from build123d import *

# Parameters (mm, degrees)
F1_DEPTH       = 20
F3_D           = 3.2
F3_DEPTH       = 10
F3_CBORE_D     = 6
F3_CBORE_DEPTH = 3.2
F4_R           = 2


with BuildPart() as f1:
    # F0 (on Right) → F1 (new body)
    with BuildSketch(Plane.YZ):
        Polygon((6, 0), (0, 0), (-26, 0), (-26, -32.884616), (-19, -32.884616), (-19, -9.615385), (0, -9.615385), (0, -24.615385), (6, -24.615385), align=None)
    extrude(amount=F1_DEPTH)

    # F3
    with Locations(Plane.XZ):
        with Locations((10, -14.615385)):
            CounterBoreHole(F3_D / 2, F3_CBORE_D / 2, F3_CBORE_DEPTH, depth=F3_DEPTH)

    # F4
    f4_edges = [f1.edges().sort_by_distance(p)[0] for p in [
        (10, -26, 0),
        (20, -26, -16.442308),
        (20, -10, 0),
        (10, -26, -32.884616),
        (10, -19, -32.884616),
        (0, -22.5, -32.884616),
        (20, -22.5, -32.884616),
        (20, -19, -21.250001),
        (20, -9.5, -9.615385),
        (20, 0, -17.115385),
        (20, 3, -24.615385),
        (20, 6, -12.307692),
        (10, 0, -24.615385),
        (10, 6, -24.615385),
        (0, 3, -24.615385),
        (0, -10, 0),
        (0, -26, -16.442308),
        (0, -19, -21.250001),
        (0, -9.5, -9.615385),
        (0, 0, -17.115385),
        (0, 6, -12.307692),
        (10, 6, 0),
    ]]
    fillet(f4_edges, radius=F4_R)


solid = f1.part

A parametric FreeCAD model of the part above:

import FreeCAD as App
import Part
import Sketcher
Q = App.Units.Quantity


def edges_at(feature, points):
    """Names of the edges that pass closest to the given points."""
    edges = feature.Shape.Edges
    near = lambda p: min(range(len(edges)), key=lambda i: edges[i].distToShape(Part.Vertex(*p))[0])
    return sorted({f"Edge{near(p) + 1}" for p in points})

doc = App.newDocument("Part")
params = doc.addObject("Spreadsheet::Sheet", "Params")
for row, (alias, value) in enumerate([
    ("sketch1_width", "32 mm"),
    ("sketch1_width2", "7 mm"),
    ("sketch1_width3", "19 mm"),
    ("sketch1_height", "15 mm"),
    ("pad1_length", "20 mm"),
    ("sketch2_diameter", "3.2 mm"),
    ("hole_diameter", "3.2 mm"),
    ("hole_depth", "10 mm"),
    ("hole_cbore_diameter", "6 mm"),
    ("hole_cbore_depth", "3.2 mm"),
    ("fillet_radius", "2 mm"),
], start=1):
    params.set(f"A{row}", alias)
    params.set(f"B{row}", "=" + value)
    params.setAlias(f"B{row}", alias)

body = doc.addObject("PartDesign::Body", "Body")

sketch1 = doc.addObject("Sketcher::SketchObject", "Sketch")
body.addObject(sketch1)
sketch1.AttachmentSupport = (doc.YZ_Plane, [""])
sketch1.MapMode = "FlatFace"
sketch1.addGeometry(Part.LineSegment(App.Vector(6, 0, 0), App.Vector(-26, 0, 0)), False)
sketch1.addGeometry(Part.LineSegment(App.Vector(-26, 0, 0), App.Vector(-26, -33, 0)), False)
sketch1.addGeometry(Part.LineSegment(App.Vector(-26, -33, 0), App.Vector(-19, -33, 0)), False)
sketch1.addGeometry(Part.LineSegment(App.Vector(-19, -33, 0), App.Vector(-19, -10, 0)), False)
sketch1.addGeometry(Part.LineSegment(App.Vector(-19, -10, 0), App.Vector(0, -10, 0)), False)
sketch1.addGeometry(Part.LineSegment(App.Vector(0, -10, 0), App.Vector(0, -25, 0)), False)
sketch1.addGeometry(Part.LineSegment(App.Vector(0, -25, 0), App.Vector(6, -25, 0)), False)
sketch1.addGeometry(Part.LineSegment(App.Vector(6, -25, 0), App.Vector(6, 0, 0)), False)
sketch1.addConstraint(Sketcher.Constraint("Coincident", 0, 2, 1, 1))
sketch1.addConstraint(Sketcher.Constraint("Coincident", 1, 2, 2, 1))
sketch1.addConstraint(Sketcher.Constraint("Coincident", 2, 2, 3, 1))
sketch1.addConstraint(Sketcher.Constraint("Coincident", 3, 2, 4, 1))
sketch1.addConstraint(Sketcher.Constraint("Coincident", 4, 2, 5, 1))
sketch1.addConstraint(Sketcher.Constraint("Coincident", 5, 2, 6, 1))
sketch1.addConstraint(Sketcher.Constraint("Coincident", 6, 2, 7, 1))
sketch1.addConstraint(Sketcher.Constraint("Coincident", 7, 2, 0, 1))
sketch1.addConstraint(Sketcher.Constraint("Horizontal", 0))
sketch1.addConstraint(Sketcher.Constraint("Vertical", 1))
sketch1.addConstraint(Sketcher.Constraint("Horizontal", 2))
sketch1.addConstraint(Sketcher.Constraint("Vertical", 3))
sketch1.addConstraint(Sketcher.Constraint("Horizontal", 4))
sketch1.addConstraint(Sketcher.Constraint("Vertical", 5))
sketch1.addConstraint(Sketcher.Constraint("Horizontal", 6))
sketch1.addConstraint(Sketcher.Constraint("Vertical", 7))
sketch1.addConstraint(Sketcher.Constraint("PointOnObject", 0, 2, -1))
sketch1.addConstraint(Sketcher.Constraint("PointOnObject", 4, 2, -2))
sketch1.addConstraint(Sketcher.Constraint("DistanceX", 0, 2, 0, 1, Q("32 mm")))
sketch1.addConstraint(Sketcher.Constraint("DistanceX", 2, 1, 2, 2, Q("7 mm")))
sketch1.addConstraint(Sketcher.Constraint("DistanceX", 4, 1, 4, 2, Q("19 mm")))
sketch1.addConstraint(Sketcher.Constraint("DistanceY", 5, 2, 5, 1, Q("15 mm")))
sketch1.addConstraint(Sketcher.Constraint("DistanceY", 3, 1, 3, 2, Q("23.269231 mm")))
sketch1.addConstraint(Sketcher.Constraint("DistanceY", 1, 2, 1, 1, Q("32.884616 mm")))
sketch1.setExpression("Constraints[18]", "Params.sketch1_width")
sketch1.setExpression("Constraints[19]", "Params.sketch1_width2")
sketch1.setExpression("Constraints[20]", "Params.sketch1_width3")
sketch1.setExpression("Constraints[21]", "Params.sketch1_height")
pad1 = doc.addObject("PartDesign::Pad", "Pad")
body.addObject(pad1)
pad1.Profile = sketch1
pad1.setExpression("Length", "Params.pad1_length")

sketch2 = doc.addObject("Sketcher::SketchObject", "Sketch001")
body.addObject(sketch2)
sketch2.AttachmentSupport = (doc.XZ_Plane, [""])
sketch2.MapMode = "FlatFace"
sketch2.addGeometry(Part.Circle(App.Vector(10, -14.6, 0), App.Vector(0, 0, 1), 1.6), False)
sketch2.addConstraint(Sketcher.Constraint("Diameter", 0, Q("3.2 mm")))
sketch2.addConstraint(Sketcher.Constraint("DistanceX", -1, 1, 0, 3, Q("10 mm")))
sketch2.addConstraint(Sketcher.Constraint("DistanceY", 0, 3, -1, 1, Q("14.615385 mm")))
sketch2.setExpression("Constraints[0]", "Params.sketch2_diameter")
doc.recompute()
hole = doc.addObject("PartDesign::Hole", "Hole")
body.addObject(hole)
hole.Profile = sketch2
hole.ThreadType = "None"
hole.setExpression("Diameter", "Params.hole_diameter")
hole.DepthType = "Dimension"
hole.setExpression("Depth", "Params.hole_depth")
hole.DrillPoint = "Flat"
hole.HoleCutType = "Counterbore"
hole.setExpression("HoleCutDiameter", "Params.hole_cbore_diameter")
hole.setExpression("HoleCutDepth", "Params.hole_cbore_depth")
doc.recompute()

fillet = doc.addObject("PartDesign::Fillet", "Fillet")
body.addObject(fillet)
fillet.Base = (hole, edges_at(hole, [
    (10, -26, 0),
    (20, -26, -16.442),
    (20, -10, 0),
    (10, -26, -32.885),
    (10, -19, -32.885),
    (0, -22.5, -32.885),
    (20, -22.5, -32.885),
    (20, -19, -21.25),
    (20, -9.5, -9.615),
    (20, 0, -17.115),
    (20, 3, -24.615),
    (20, 6, -12.308),
    (10, 0, -24.615),
    (10, 6, -24.615),
    (0, 3, -24.615),
    (0, -10, 0),
    (0, -26, -16.442),
    (0, -19, -21.25),
    (0, -9.5, -9.615),
    (0, 0, -17.115),
    (0, 6, -12.308),
    (10, 6, 0),
]))
fillet.setExpression("Radius", "Params.fillet_radius")

doc.recompute()
